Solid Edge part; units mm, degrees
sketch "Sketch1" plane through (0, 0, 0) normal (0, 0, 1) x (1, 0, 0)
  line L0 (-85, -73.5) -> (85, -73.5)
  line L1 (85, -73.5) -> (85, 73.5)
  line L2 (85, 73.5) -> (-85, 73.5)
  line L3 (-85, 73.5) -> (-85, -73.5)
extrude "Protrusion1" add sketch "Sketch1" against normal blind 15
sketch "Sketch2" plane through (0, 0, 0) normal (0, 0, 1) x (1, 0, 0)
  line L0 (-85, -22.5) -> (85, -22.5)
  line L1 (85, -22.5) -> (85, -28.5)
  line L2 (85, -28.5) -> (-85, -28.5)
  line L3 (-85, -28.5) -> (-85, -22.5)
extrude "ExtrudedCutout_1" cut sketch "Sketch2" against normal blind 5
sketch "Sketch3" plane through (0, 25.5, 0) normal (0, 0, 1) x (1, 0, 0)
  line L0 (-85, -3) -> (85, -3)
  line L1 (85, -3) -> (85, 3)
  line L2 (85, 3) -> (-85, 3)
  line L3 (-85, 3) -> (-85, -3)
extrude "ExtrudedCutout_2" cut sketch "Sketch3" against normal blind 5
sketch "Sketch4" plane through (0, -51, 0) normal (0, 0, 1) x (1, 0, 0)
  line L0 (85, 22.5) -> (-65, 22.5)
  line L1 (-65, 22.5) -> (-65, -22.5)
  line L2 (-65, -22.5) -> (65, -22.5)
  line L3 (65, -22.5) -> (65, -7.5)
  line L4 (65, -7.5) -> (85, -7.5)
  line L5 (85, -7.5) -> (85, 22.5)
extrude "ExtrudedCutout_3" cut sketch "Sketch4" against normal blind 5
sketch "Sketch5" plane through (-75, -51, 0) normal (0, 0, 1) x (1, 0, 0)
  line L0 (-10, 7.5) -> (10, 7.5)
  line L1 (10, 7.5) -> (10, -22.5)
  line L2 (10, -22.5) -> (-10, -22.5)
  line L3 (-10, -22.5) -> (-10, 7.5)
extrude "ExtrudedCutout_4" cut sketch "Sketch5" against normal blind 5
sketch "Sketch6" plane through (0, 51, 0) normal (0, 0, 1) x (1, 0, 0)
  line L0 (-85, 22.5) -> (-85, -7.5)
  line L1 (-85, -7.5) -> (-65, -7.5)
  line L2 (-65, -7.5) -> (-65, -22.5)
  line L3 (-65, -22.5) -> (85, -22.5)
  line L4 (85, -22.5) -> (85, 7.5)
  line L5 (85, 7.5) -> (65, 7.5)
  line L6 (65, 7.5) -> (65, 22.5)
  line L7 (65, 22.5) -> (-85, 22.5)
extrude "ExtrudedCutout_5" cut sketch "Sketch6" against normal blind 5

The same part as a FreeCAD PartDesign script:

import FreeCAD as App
import Part
import Sketcher

doc = App.newDocument("Part")
body = doc.addObject("PartDesign::Body", "Body")

# Sketch on XY plane
sketch1 = body.newObject("Sketcher::SketchObject", "Sketch")
sketch1.AttachmentSupport = (doc.getObject("XY_Plane"), [""])
sketch1.MapMode = "FlatFace"
sketch1.addGeometry([
    Part.LineSegment(App.Vector(-85, 73.5, 0), App.Vector(-85, -73.5, 0)),
    Part.LineSegment(App.Vector(-85, -73.5, 0), App.Vector(85, -73.5, 0)),
    Part.LineSegment(App.Vector(85, -73.5, 0), App.Vector(85, 73.5, 0)),
    Part.LineSegment(App.Vector(85, 73.5, 0), App.Vector(-85, 73.5, 0)),
], False)
sketch1.addConstraint([
    Sketcher.Constraint("Coincident", 0, 2, 1, 1),
    Sketcher.Constraint("Coincident", 1, 2, 2, 1),
    Sketcher.Constraint("Coincident", 2, 2, 3, 1),
    Sketcher.Constraint("Coincident", 3, 2, 0, 1),
    Sketcher.Constraint("Vertical", 0),
    Sketcher.Constraint("Horizontal", 1),
    Sketcher.Constraint("Vertical", 2),
    Sketcher.Constraint("Horizontal", 3),
    Sketcher.Constraint("Symmetric", 0, 2, 2, 2, -1, 1),
    Sketcher.Constraint("DistanceX", 1, 1, 1, 2, 170.0),
    Sketcher.Constraint("DistanceY", 0, 2, 0, 1, 147.0),
])
pad1 = body.newObject("PartDesign::Pad", "Pad")
pad1.Profile = sketch1
pad1.Length = 15
pad1.Reversed = True

# Sketch on XY plane
sketch2 = body.newObject("Sketcher::SketchObject", "Sketch001")
sketch2.AttachmentSupport = (doc.getObject("XY_Plane"), [""])
sketch2.MapMode = "FlatFace"
sketch2.addGeometry([
    Part.LineSegment(App.Vector(85, -22.5, 0), App.Vector(-85, -22.5, 0)),
    Part.LineSegment(App.Vector(-85, -22.5, 0), App.Vector(-85, -28.5, 0)),
    Part.LineSegment(App.Vector(-85, -28.5, 0), App.Vector(85, -28.5, 0)),
    Part.LineSegment(App.Vector(85, -28.5, 0), App.Vector(85, -22.5, 0)),
], False)
sketch2.addConstraint([
    Sketcher.Constraint("Coincident", 0, 2, 1, 1),
    Sketcher.Constraint("Coincident", 1, 2, 2, 1),
    Sketcher.Constraint("Coincident", 2, 2, 3, 1),
    Sketcher.Constraint("Coincident", 3, 2, 0, 1),
    Sketcher.Constraint("Horizontal", 0),
    Sketcher.Constraint("Vertical", 1),
    Sketcher.Constraint("Horizontal", 2),
    Sketcher.Constraint("Vertical", 3),
    Sketcher.Constraint("DistanceX", 0, 2, 0, 1, 170.0),
    Sketcher.Constraint("DistanceY", 1, 2, 1, 1, 6.0),
    Sketcher.Constraint("DistanceX", 0, 2, -1, 1, 85.0),
    Sketcher.Constraint("DistanceY", 0, 2, -1, 1, 22.5),
])
pocket1 = body.newObject("PartDesign::Pocket", "Pocket")
pocket1.Profile = sketch2
pocket1.Length = 5

# Sketch on XY plane
sketch3 = body.newObject("Sketcher::SketchObject", "Sketch002")
sketch3.AttachmentSupport = (doc.getObject("XY_Plane"), [""])
sketch3.MapMode = "FlatFace"
sketch3.addGeometry([
    Part.LineSegment(App.Vector(-85, 28.5, 0), App.Vector(-85, 22.5, 0)),
    Part.LineSegment(App.Vector(-85, 22.5, 0), App.Vector(85, 22.5, 0)),
    Part.LineSegment(App.Vector(85, 22.5, 0), App.Vector(85, 28.5, 0)),
    Part.LineSegment(App.Vector(85, 28.5, 0), App.Vector(-85, 28.5, 0)),
], False)
sketch3.addConstraint([
    Sketcher.Constraint("Coincident", 0, 2, 1, 1),
    Sketcher.Constraint("Coincident", 1, 2, 2, 1),
    Sketcher.Constraint("Coincident", 2, 2, 3, 1),
    Sketcher.Constraint("Coincident", 3, 2, 0, 1),
    Sketcher.Constraint("Vertical", 0),
    Sketcher.Constraint("Horizontal", 1),
    Sketcher.Constraint("Vertical", 2),
    Sketcher.Constraint("Horizontal", 3),
    Sketcher.Constraint("DistanceX", 1, 1, 1, 2, 170.0),
    Sketcher.Constraint("DistanceY", 0, 2, 0, 1, 6.0),
    Sketcher.Constraint("DistanceX", 0, 2, -1, 1, 85.0),
    Sketcher.Constraint("DistanceY", -1, 1, 0, 2, 22.5),
])
pocket2 = body.newObject("PartDesign::Pocket", "Pocket001")
pocket2.Profile = sketch3
pocket2.Length = 5

# Sketch on XY plane
sketch4 = body.newObject("Sketcher::SketchObject", "Sketch003")
sketch4.AttachmentSupport = (doc.getObject("XY_Plane"), [""])
sketch4.MapMode = "FlatFace"
sketch4.addGeometry([
    Part.LineSegment(App.Vector(85, -58.5, 0), App.Vector(85, -28.5, 0)),  # 0
    Part.LineSegment(App.Vector(85, -28.5, 0), App.Vector(-65, -28.5, 0)),  # 1
    Part.LineSegment(App.Vector(-65, -28.5, 0), App.Vector(-65, -73.5, 0)),  # 2
    Part.LineSegment(App.Vector(-65, -73.5, 0), App.Vector(65, -73.5, 0)),  # 3
    Part.LineSegment(App.Vector(65, -73.5, 0), App.Vector(65, -58.5, 0)),  # 4
    Part.LineSegment(App.Vector(65, -58.5, 0), App.Vector(85, -58.5, 0)),  # 5
], False)
sketch4.addConstraint([
    Sketcher.Constraint("Coincident", 0, 2, 1, 1),
    Sketcher.Constraint("Coincident", 1, 2, 2, 1),
    Sketcher.Constraint("Coincident", 2, 2, 3, 1),
    Sketcher.Constraint("Coincident", 3, 2, 4, 1),
    Sketcher.Constraint("Coincident", 4, 2, 5, 1),
    Sketcher.Constraint("Coincident", 5, 2, 0, 1),
    Sketcher.Constraint("Vertical", 0),
    Sketcher.Constraint("Horizontal", 1),
    Sketcher.Constraint("Vertical", 2),
    Sketcher.Constraint("Horizontal", 3),
    Sketcher.Constraint("Vertical", 4),
    Sketcher.Constraint("Horizontal", 5),
    Sketcher.Constraint("DistanceX", 1, 2, 1, 1, 150.0),
    Sketcher.Constraint("DistanceX", 3, 1, 3, 2, 130.0),
    Sketcher.Constraint("DistanceY", 0, 1, 0, 2, 30.0),
    Sketcher.Constraint("DistanceY", 2, 2, 2, 1, 45.0),
    Sketcher.Constraint("DistanceX", -1, 1, 0, 2, 85.0),
    Sketcher.Constraint("DistanceY", 0, 2, -1, 1, 28.5),
])
pocket3 = body.newObject("PartDesign::Pocket", "Pocket002")
pocket3.Profile = sketch4
pocket3.Length = 5

# Sketch on XY plane
sketch5 = body.newObject("Sketcher::SketchObject", "Sketch004")
sketch5.AttachmentSupport = (doc.getObject("XY_Plane"), [""])
sketch5.MapMode = "FlatFace"
sketch5.addGeometry([
    Part.LineSegment(App.Vector(-65, -43.5, 0), App.Vector(-85, -43.5, 0)),
    Part.LineSegment(App.Vector(-85, -43.5, 0), App.Vector(-85, -73.5, 0)),
    Part.LineSegment(App.Vector(-85, -73.5, 0), App.Vector(-65, -73.5, 0)),
    Part.LineSegment(App.Vector(-65, -73.5, 0), App.Vector(-65, -43.5, 0)),
], False)
sketch5.addConstraint([
    Sketcher.Constraint("Coincident", 0, 2, 1, 1),
    Sketcher.Constraint("Coincident", 1, 2, 2, 1),
    Sketcher.Constraint("Coincident", 2, 2, 3, 1),
    Sketcher.Constraint("Coincident", 3, 2, 0, 1),
    Sketcher.Constraint("Horizontal", 0),
    Sketcher.Constraint("Vertical", 1),
    Sketcher.Constraint("Horizontal", 2),
    Sketcher.Constraint("Vertical", 3),
    Sketcher.Constraint("DistanceX", 0, 2, 0, 1, 20.0),
    Sketcher.Constraint("DistanceY", 1, 2, 1, 1, 30.0),
    Sketcher.Constraint("DistanceX", 0, 2, -1, 1, 85.0),
    Sketcher.Constraint("DistanceY", 0, 2, -1, 1, 43.5),
])
pocket4 = body.newObject("PartDesign::Pocket", "Pocket003")
pocket4.Profile = sketch5
pocket4.Length = 5

# Sketch on XY plane
sketch6 = body.newObject("Sketcher::SketchObject", "Sketch005")
sketch6.AttachmentSupport = (doc.getObject("XY_Plane"), [""])
sketch6.MapMode = "FlatFace"
sketch6.addGeometry([
    Part.LineSegment(App.Vector(65, 73.5, 0), App.Vector(-85, 73.5, 0)),  # 0
    Part.LineSegment(App.Vector(-85, 73.5, 0), App.Vector(-85, 43.5, 0)),  # 1
    Part.LineSegment(App.Vector(-85, 43.5, 0), App.Vector(-65, 43.5, 0)),  # 2
    Part.LineSegment(App.Vector(-65, 43.5, 0), App.Vector(-65, 28.5, 0)),  # 3
    Part.LineSegment(App.Vector(-65, 28.5, 0), App.Vector(85, 28.5, 0)),  # 4
    Part.LineSegment(App.Vector(85, 28.5, 0), App.Vector(85, 58.5, 0)),  # 5
    Part.LineSegment(App.Vector(85, 58.5, 0), App.Vector(65, 58.5, 0)),  # 6
    Part.LineSegment(App.Vector(65, 58.5, 0), App.Vector(65, 73.5, 0)),  # 7
], False)
sketch6.addConstraint([
    Sketcher.Constraint("Coincident", 0, 2, 1, 1),
    Sketcher.Constraint("Coincident", 1, 2, 2, 1),
    Sketcher.Constraint("Coincident", 2, 2, 3, 1),
    Sketcher.Constraint("Coincident", 3, 2, 4, 1),
    Sketcher.Constraint("Coincident", 4, 2, 5, 1),
    Sketcher.Constraint("Coincident", 5, 2, 6, 1),
    Sketcher.Constraint("Coincident", 6, 2, 7, 1),
    Sketcher.Constraint("Coincident", 7, 2, 0, 1),
    Sketcher.Constraint("Horizontal", 0),
    Sketcher.Constraint("Vertical", 1),
    Sketcher.Constraint("Horizontal", 2),
    Sketcher.Constraint("Vertical", 3),
    Sketcher.Constraint("Horizontal", 4),
    Sketcher.Constraint("Vertical", 5),
    Sketcher.Constraint("Horizontal", 6),
    Sketcher.Constraint("Vertical", 7),
    Sketcher.Constraint("Equal", 0, 4),
    Sketcher.Constraint("Equal", 1, 5),
    Sketcher.Constraint("DistanceX", 0, 2, 0, 1, 150.0),
    Sketcher.Constraint("DistanceX", 2, 1, 2, 2, 20.0),
    Sketcher.Constraint("DistanceY", 1, 2, 1, 1, 30.0),
    Sketcher.Constraint("DistanceY", 3, 2, 3, 1, 15.0),
    Sketcher.Constraint("DistanceX", 0, 2, -1, 1, 85.0),
    Sketcher.Constraint("DistanceY", -1, 1, 0, 2, 73.5),
])
pocket5 = body.newObject("PartDesign::Pocket", "Pocket004")
pocket5.Profile = sketch6
pocket5.Length = 5

doc.recompute()
